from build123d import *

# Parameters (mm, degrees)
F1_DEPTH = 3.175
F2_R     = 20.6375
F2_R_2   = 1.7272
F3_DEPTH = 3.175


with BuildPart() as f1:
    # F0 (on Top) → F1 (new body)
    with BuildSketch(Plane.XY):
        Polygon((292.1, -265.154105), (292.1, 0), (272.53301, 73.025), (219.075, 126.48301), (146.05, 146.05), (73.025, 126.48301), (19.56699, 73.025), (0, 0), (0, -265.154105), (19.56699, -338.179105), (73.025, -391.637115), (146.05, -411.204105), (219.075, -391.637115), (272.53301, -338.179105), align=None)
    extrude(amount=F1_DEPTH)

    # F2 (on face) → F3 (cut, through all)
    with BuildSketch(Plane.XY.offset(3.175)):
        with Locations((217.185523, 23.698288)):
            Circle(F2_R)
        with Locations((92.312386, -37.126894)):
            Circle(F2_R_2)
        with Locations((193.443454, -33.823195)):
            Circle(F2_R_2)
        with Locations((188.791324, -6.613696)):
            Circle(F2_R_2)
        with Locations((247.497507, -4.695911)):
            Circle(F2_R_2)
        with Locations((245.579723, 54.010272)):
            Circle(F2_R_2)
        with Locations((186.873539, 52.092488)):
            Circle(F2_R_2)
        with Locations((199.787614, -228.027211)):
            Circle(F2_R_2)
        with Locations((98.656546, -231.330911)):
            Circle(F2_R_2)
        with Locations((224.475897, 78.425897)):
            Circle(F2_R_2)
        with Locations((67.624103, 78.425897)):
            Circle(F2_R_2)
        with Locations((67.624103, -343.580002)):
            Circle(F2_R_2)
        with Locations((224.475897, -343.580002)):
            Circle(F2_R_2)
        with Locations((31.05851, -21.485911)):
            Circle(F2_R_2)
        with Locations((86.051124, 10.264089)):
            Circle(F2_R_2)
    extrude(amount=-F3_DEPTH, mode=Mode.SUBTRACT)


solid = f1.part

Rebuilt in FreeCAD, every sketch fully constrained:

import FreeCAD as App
import Part
import Sketcher
Q = App.Units.Quantity


def add_polygon(sketch, points):
    """Adds a closed chain of lines whose ends are joined by coincident constraints."""
    first, n = sketch.GeometryCount, len(points)
    for a, b in zip(points, points[1:] + points[:1]):
        sketch.addGeometry(Part.LineSegment(App.Vector(*a, 0), App.Vector(*b, 0)), False)
    for i in range(n):
        sketch.addConstraint(Sketcher.Constraint("Coincident", first + i, 2, first + (i + 1) % n, 1))

doc = App.newDocument("Part")
params = doc.addObject("Spreadsheet::Sheet", "Params")
for row, (alias, value) in enumerate([
    ("pad1_length", "0.125 in"),
    ("sketch2_diameter", "1.625 in"),
    ("sketch2_diameter2", "0.136 in"),
], start=1):
    params.set(f"A{row}", alias)
    params.set(f"B{row}", "=" + value)
    params.setAlias(f"B{row}", alias)

body = doc.addObject("PartDesign::Body", "Body")

sketch1 = body.newObject("Sketcher::SketchObject", "Sketch")
sketch1.AttachmentSupport = (doc.getObject("XY_Plane"), [""])
sketch1.MapMode = "FlatFace"
add_polygon(sketch1, [(292, -265), (292, 0), (273, 73), (219, 126), (146, 146), (73, 126), (20, 73), (0, 0), (0, -265), (20, -338), (73, -392), (146, -411), (219, -392), (273, -338)])
sketch1.addConstraint(Sketcher.Constraint("Vertical", 0))
sketch1.addConstraint(Sketcher.Constraint("Vertical", 7))
sketch1.addConstraint(Sketcher.Constraint("Coincident", 6, 2, -1, 1))
sketch1.addConstraint(Sketcher.Constraint("PointOnObject", 0, 2, -1))
sketch1.addConstraint(Sketcher.Constraint("Perpendicular", 1, 4))
sketch1.addConstraint(Sketcher.Constraint("Perpendicular", 2, 5))
sketch1.addConstraint(Sketcher.Constraint("Perpendicular", 3, 6))
sketch1.addConstraint(Sketcher.Constraint("Perpendicular", 4, 8))
sketch1.addConstraint(Sketcher.Constraint("Perpendicular", 5, 9))
sketch1.addConstraint(Sketcher.Constraint("Perpendicular", 6, 10))
sketch1.addConstraint(Sketcher.Constraint("Perpendicular", 8, 11))
sketch1.addConstraint(Sketcher.Constraint("Perpendicular", 9, 12))
sketch1.addConstraint(Sketcher.Constraint("Perpendicular", 10, 13))
sketch1.addConstraint(Sketcher.Constraint("Horizontal", 2, 2, 4, 2))
sketch1.addConstraint(Sketcher.Constraint("Horizontal", 1, 2, 5, 2))
sketch1.addConstraint(Sketcher.Constraint("Horizontal", 9, 2, 11, 2))
sketch1.addConstraint(Sketcher.Constraint("Horizontal", 8, 2, 12, 2))
sketch1.addConstraint(Sketcher.Constraint("Horizontal", 7, 2, 13, 2))
sketch1.addConstraint(Sketcher.Constraint("Vertical", 5, 2, 8, 2))
sketch1.addConstraint(Sketcher.Constraint("Vertical", 4, 2, 9, 2))
sketch1.addConstraint(Sketcher.Constraint("Vertical", 3, 2, 10, 2))
sketch1.addConstraint(Sketcher.Constraint("Vertical", 2, 2, 11, 2))
sketch1.addConstraint(Sketcher.Constraint("Equal", 1, 2))
sketch1.addConstraint(Sketcher.Constraint("Equal", 2, 3))
sketch1.addConstraint(Sketcher.Constraint("Angle", 1, Q("105 deg")))
sketch1.addConstraint(Sketcher.Constraint("DistanceX", -1, 1, 0, 2, Q("11.5 in")))
sketch1.addConstraint(Sketcher.Constraint("DistanceY", 0, 1, 0, 2, 265.154105))
pad1 = body.newObject("PartDesign::Pad", "Pad")
pad1.Profile = sketch1
pad1.setExpression("Length", "Params.pad1_length")

sketch2 = body.newObject("Sketcher::SketchObject", "Sketch001")
sketch2.AttachmentSupport = (doc.getObject("XY_Plane"), [""])
sketch2.MapMode = "FlatFace"
sketch2.AttachmentOffset = App.Placement(App.Vector(0, 0, 0.125 * 25.4), App.Rotation())
sketch2.addGeometry(Part.Circle(App.Vector(217.2, 23.7, 0), App.Vector(0, 0, 1), 20.6), False)
sketch2.addGeometry(Part.Circle(App.Vector(92.3, -37.1, 0), App.Vector(0, 0, 1), 1.7), False)
sketch2.addGeometry(Part.Circle(App.Vector(193.4, -33.8, 0), App.Vector(0, 0, 1), 1.7), False)
sketch2.addGeometry(Part.Circle(App.Vector(188.8, -6.6, 0), App.Vector(0, 0, 1), 1.7), False)
sketch2.addGeometry(Part.Circle(App.Vector(247.5, -4.7, 0), App.Vector(0, 0, 1), 1.7), False)
sketch2.addGeometry(Part.Circle(App.Vector(245.6, 54, 0), App.Vector(0, 0, 1), 1.7), False)
sketch2.addGeometry(Part.Circle(App.Vector(186.9, 52.1, 0), App.Vector(0, 0, 1), 1.7), False)
sketch2.addGeometry(Part.Circle(App.Vector(199.8, -228, 0), App.Vector(0, 0, 1), 1.7), False)
sketch2.addGeometry(Part.Circle(App.Vector(98.7, -231.3, 0), App.Vector(0, 0, 1), 1.7), False)
sketch2.addGeometry(Part.Circle(App.Vector(224.5, 78.4, 0), App.Vector(0, 0, 1), 1.7), False)
sketch2.addGeometry(Part.Circle(App.Vector(67.6, 78.4, 0), App.Vector(0, 0, 1), 1.7), False)
sketch2.addGeometry(Part.Circle(App.Vector(67.6, -343.6, 0), App.Vector(0, 0, 1), 1.7), False)
sketch2.addGeometry(Part.Circle(App.Vector(224.5, -343.6, 0), App.Vector(0, 0, 1), 1.7), False)
sketch2.addGeometry(Part.Circle(App.Vector(31.1, -21.5, 0), App.Vector(0, 0, 1), 1.7), False)
sketch2.addGeometry(Part.Circle(App.Vector(86.1, 10.3, 0), App.Vector(0, 0, 1), 1.7), False)
sketch2.addConstraint(Sketcher.Constraint("Equal", 1, 2))
sketch2.addConstraint(Sketcher.Constraint("Equal", 2, 3))
sketch2.addConstraint(Sketcher.Constraint("Equal", 3, 4))
sketch2.addConstraint(Sketcher.Constraint("Equal", 4, 5))
sketch2.addConstraint(Sketcher.Constraint("Equal", 5, 6))
sketch2.addConstraint(Sketcher.Constraint("Equal", 6, 7))
sketch2.addConstraint(Sketcher.Constraint("Equal", 7, 8))
sketch2.addConstraint(Sketcher.Constraint("Equal", 8, 9))
sketch2.addConstraint(Sketcher.Constraint("Equal", 9, 10))
sketch2.addConstraint(Sketcher.Constraint("Equal", 10, 11))
sketch2.addConstraint(Sketcher.Constraint("Equal", 11, 12))
sketch2.addConstraint(Sketcher.Constraint("Equal", 12, 13))
sketch2.addConstraint(Sketcher.Constraint("Equal", 13, 14))
sketch2.addConstraint(Sketcher.Constraint("Horizontal", 9, 3, 10, 3))
sketch2.addConstraint(Sketcher.Constraint("Horizontal", 11, 3, 12, 3))
sketch2.addConstraint(Sketcher.Constraint("Vertical", 10, 3, 11, 3))
sketch2.addConstraint(Sketcher.Constraint("Vertical", 9, 3, 12, 3))
sketch2.addConstraint(Sketcher.Constraint("Diameter", 0, Q("1.625 in")))
sketch2.addConstraint(Sketcher.Constraint("Diameter", 1, Q("0.136 in")))
sketch2.addConstraint(Sketcher.Constraint("DistanceY", 13, 3, 14, 3, Q("1.25 in")))
sketch2.addConstraint(Sketcher.Constraint("DistanceY", 11, 3, -1, 1, 343.580002))
sketch2.addConstraint(Sketcher.Constraint("DistanceY", 1, 3, 2, 3, 3.303699))
sketch2.addConstraint(Sketcher.Constraint("DistanceY", 2, 3, 3, 3, 27.209499))
sketch2.addConstraint(Sketcher.Constraint("DistanceX", 3, 3, 0, 3, 28.394199))
sketch2.addConstraint(Sketcher.Constraint("DistanceY", 4, 3, 0, 3, 28.394199))
sketch2.addConstraint(Sketcher.Constraint("DistanceX", 0, 3, 5, 3, 28.3942))
sketch2.addConstraint(Sketcher.Constraint("DistanceY", 0, 3, 6, 3, 28.3942))
sketch2.addConstraint(Sketcher.Constraint("DistanceY", 7, 3, 4, 3, 223.3313))
sketch2.addConstraint(Sketcher.Constraint("DistanceY", 8, 3, 7, 3, 3.3037))
sketch2.addConstraint(Sketcher.Constraint("DistanceY", 13, 3, 6, 3, 73.578399))
sketch2.addConstraint(Sketcher.Constraint("DistanceX", 14, 3, 3, 3, 102.7402))
sketch2.addConstraint(Sketcher.Constraint("DistanceY", -1, 1, 0, 3, 23.698288))
sketch2.addConstraint(Sketcher.Constraint("DistanceX", -1, 1, 6, 3, 186.873539))
sketch2.addConstraint(Sketcher.Constraint("DistanceX", -1, 1, 13, 3, 31.05851))
sketch2.addConstraint(Sketcher.Constraint("DistanceY", 1, 3, 0, 3, 60.825182))
sketch2.addConstraint(Sketcher.Constraint("DistanceX", 2, 3, 0, 3, 23.742069))
sketch2.addConstraint(Sketcher.Constraint("DistanceX", 1, 3, 2, 3, 101.131068))
sketch2.addConstraint(Sketcher.Constraint("DistanceX", 1, 3, 4, 3, 155.185121))
sketch2.addConstraint(Sketcher.Constraint("DistanceX", 6, 3, 4, 3, 60.623968))
sketch2.addConstraint(Sketcher.Constraint("DistanceX", 2, 3, 7, 3, 6.34416))
sketch2.addConstraint(Sketcher.Constraint("DistanceX", 1, 3, 8, 3, 6.34416))
sketch2.addConstraint(Sketcher.Constraint("DistanceX", 6, 3, 9, 3, 37.602358))
sketch2.addConstraint(Sketcher.Constraint("DistanceY", 6, 3, 9, 3, 26.333409))
sketch2.addConstraint(Sketcher.Constraint("DistanceX", 10, 3, 3, 3, 121.167221))
sketch2.addConstraint(Sketcher.Constraint("DistanceY", -1, 1, 5, 3, 54.010272))
sketch2.setExpression("Constraints[17]", "Params.sketch2_diameter")
sketch2.setExpression("Constraints[18]", "Params.sketch2_diameter2")
pocket1 = body.newObject("PartDesign::Pocket", "Pocket")
pocket1.Profile = sketch2
pocket1.Type = "ThroughAll"

doc.recompute()
